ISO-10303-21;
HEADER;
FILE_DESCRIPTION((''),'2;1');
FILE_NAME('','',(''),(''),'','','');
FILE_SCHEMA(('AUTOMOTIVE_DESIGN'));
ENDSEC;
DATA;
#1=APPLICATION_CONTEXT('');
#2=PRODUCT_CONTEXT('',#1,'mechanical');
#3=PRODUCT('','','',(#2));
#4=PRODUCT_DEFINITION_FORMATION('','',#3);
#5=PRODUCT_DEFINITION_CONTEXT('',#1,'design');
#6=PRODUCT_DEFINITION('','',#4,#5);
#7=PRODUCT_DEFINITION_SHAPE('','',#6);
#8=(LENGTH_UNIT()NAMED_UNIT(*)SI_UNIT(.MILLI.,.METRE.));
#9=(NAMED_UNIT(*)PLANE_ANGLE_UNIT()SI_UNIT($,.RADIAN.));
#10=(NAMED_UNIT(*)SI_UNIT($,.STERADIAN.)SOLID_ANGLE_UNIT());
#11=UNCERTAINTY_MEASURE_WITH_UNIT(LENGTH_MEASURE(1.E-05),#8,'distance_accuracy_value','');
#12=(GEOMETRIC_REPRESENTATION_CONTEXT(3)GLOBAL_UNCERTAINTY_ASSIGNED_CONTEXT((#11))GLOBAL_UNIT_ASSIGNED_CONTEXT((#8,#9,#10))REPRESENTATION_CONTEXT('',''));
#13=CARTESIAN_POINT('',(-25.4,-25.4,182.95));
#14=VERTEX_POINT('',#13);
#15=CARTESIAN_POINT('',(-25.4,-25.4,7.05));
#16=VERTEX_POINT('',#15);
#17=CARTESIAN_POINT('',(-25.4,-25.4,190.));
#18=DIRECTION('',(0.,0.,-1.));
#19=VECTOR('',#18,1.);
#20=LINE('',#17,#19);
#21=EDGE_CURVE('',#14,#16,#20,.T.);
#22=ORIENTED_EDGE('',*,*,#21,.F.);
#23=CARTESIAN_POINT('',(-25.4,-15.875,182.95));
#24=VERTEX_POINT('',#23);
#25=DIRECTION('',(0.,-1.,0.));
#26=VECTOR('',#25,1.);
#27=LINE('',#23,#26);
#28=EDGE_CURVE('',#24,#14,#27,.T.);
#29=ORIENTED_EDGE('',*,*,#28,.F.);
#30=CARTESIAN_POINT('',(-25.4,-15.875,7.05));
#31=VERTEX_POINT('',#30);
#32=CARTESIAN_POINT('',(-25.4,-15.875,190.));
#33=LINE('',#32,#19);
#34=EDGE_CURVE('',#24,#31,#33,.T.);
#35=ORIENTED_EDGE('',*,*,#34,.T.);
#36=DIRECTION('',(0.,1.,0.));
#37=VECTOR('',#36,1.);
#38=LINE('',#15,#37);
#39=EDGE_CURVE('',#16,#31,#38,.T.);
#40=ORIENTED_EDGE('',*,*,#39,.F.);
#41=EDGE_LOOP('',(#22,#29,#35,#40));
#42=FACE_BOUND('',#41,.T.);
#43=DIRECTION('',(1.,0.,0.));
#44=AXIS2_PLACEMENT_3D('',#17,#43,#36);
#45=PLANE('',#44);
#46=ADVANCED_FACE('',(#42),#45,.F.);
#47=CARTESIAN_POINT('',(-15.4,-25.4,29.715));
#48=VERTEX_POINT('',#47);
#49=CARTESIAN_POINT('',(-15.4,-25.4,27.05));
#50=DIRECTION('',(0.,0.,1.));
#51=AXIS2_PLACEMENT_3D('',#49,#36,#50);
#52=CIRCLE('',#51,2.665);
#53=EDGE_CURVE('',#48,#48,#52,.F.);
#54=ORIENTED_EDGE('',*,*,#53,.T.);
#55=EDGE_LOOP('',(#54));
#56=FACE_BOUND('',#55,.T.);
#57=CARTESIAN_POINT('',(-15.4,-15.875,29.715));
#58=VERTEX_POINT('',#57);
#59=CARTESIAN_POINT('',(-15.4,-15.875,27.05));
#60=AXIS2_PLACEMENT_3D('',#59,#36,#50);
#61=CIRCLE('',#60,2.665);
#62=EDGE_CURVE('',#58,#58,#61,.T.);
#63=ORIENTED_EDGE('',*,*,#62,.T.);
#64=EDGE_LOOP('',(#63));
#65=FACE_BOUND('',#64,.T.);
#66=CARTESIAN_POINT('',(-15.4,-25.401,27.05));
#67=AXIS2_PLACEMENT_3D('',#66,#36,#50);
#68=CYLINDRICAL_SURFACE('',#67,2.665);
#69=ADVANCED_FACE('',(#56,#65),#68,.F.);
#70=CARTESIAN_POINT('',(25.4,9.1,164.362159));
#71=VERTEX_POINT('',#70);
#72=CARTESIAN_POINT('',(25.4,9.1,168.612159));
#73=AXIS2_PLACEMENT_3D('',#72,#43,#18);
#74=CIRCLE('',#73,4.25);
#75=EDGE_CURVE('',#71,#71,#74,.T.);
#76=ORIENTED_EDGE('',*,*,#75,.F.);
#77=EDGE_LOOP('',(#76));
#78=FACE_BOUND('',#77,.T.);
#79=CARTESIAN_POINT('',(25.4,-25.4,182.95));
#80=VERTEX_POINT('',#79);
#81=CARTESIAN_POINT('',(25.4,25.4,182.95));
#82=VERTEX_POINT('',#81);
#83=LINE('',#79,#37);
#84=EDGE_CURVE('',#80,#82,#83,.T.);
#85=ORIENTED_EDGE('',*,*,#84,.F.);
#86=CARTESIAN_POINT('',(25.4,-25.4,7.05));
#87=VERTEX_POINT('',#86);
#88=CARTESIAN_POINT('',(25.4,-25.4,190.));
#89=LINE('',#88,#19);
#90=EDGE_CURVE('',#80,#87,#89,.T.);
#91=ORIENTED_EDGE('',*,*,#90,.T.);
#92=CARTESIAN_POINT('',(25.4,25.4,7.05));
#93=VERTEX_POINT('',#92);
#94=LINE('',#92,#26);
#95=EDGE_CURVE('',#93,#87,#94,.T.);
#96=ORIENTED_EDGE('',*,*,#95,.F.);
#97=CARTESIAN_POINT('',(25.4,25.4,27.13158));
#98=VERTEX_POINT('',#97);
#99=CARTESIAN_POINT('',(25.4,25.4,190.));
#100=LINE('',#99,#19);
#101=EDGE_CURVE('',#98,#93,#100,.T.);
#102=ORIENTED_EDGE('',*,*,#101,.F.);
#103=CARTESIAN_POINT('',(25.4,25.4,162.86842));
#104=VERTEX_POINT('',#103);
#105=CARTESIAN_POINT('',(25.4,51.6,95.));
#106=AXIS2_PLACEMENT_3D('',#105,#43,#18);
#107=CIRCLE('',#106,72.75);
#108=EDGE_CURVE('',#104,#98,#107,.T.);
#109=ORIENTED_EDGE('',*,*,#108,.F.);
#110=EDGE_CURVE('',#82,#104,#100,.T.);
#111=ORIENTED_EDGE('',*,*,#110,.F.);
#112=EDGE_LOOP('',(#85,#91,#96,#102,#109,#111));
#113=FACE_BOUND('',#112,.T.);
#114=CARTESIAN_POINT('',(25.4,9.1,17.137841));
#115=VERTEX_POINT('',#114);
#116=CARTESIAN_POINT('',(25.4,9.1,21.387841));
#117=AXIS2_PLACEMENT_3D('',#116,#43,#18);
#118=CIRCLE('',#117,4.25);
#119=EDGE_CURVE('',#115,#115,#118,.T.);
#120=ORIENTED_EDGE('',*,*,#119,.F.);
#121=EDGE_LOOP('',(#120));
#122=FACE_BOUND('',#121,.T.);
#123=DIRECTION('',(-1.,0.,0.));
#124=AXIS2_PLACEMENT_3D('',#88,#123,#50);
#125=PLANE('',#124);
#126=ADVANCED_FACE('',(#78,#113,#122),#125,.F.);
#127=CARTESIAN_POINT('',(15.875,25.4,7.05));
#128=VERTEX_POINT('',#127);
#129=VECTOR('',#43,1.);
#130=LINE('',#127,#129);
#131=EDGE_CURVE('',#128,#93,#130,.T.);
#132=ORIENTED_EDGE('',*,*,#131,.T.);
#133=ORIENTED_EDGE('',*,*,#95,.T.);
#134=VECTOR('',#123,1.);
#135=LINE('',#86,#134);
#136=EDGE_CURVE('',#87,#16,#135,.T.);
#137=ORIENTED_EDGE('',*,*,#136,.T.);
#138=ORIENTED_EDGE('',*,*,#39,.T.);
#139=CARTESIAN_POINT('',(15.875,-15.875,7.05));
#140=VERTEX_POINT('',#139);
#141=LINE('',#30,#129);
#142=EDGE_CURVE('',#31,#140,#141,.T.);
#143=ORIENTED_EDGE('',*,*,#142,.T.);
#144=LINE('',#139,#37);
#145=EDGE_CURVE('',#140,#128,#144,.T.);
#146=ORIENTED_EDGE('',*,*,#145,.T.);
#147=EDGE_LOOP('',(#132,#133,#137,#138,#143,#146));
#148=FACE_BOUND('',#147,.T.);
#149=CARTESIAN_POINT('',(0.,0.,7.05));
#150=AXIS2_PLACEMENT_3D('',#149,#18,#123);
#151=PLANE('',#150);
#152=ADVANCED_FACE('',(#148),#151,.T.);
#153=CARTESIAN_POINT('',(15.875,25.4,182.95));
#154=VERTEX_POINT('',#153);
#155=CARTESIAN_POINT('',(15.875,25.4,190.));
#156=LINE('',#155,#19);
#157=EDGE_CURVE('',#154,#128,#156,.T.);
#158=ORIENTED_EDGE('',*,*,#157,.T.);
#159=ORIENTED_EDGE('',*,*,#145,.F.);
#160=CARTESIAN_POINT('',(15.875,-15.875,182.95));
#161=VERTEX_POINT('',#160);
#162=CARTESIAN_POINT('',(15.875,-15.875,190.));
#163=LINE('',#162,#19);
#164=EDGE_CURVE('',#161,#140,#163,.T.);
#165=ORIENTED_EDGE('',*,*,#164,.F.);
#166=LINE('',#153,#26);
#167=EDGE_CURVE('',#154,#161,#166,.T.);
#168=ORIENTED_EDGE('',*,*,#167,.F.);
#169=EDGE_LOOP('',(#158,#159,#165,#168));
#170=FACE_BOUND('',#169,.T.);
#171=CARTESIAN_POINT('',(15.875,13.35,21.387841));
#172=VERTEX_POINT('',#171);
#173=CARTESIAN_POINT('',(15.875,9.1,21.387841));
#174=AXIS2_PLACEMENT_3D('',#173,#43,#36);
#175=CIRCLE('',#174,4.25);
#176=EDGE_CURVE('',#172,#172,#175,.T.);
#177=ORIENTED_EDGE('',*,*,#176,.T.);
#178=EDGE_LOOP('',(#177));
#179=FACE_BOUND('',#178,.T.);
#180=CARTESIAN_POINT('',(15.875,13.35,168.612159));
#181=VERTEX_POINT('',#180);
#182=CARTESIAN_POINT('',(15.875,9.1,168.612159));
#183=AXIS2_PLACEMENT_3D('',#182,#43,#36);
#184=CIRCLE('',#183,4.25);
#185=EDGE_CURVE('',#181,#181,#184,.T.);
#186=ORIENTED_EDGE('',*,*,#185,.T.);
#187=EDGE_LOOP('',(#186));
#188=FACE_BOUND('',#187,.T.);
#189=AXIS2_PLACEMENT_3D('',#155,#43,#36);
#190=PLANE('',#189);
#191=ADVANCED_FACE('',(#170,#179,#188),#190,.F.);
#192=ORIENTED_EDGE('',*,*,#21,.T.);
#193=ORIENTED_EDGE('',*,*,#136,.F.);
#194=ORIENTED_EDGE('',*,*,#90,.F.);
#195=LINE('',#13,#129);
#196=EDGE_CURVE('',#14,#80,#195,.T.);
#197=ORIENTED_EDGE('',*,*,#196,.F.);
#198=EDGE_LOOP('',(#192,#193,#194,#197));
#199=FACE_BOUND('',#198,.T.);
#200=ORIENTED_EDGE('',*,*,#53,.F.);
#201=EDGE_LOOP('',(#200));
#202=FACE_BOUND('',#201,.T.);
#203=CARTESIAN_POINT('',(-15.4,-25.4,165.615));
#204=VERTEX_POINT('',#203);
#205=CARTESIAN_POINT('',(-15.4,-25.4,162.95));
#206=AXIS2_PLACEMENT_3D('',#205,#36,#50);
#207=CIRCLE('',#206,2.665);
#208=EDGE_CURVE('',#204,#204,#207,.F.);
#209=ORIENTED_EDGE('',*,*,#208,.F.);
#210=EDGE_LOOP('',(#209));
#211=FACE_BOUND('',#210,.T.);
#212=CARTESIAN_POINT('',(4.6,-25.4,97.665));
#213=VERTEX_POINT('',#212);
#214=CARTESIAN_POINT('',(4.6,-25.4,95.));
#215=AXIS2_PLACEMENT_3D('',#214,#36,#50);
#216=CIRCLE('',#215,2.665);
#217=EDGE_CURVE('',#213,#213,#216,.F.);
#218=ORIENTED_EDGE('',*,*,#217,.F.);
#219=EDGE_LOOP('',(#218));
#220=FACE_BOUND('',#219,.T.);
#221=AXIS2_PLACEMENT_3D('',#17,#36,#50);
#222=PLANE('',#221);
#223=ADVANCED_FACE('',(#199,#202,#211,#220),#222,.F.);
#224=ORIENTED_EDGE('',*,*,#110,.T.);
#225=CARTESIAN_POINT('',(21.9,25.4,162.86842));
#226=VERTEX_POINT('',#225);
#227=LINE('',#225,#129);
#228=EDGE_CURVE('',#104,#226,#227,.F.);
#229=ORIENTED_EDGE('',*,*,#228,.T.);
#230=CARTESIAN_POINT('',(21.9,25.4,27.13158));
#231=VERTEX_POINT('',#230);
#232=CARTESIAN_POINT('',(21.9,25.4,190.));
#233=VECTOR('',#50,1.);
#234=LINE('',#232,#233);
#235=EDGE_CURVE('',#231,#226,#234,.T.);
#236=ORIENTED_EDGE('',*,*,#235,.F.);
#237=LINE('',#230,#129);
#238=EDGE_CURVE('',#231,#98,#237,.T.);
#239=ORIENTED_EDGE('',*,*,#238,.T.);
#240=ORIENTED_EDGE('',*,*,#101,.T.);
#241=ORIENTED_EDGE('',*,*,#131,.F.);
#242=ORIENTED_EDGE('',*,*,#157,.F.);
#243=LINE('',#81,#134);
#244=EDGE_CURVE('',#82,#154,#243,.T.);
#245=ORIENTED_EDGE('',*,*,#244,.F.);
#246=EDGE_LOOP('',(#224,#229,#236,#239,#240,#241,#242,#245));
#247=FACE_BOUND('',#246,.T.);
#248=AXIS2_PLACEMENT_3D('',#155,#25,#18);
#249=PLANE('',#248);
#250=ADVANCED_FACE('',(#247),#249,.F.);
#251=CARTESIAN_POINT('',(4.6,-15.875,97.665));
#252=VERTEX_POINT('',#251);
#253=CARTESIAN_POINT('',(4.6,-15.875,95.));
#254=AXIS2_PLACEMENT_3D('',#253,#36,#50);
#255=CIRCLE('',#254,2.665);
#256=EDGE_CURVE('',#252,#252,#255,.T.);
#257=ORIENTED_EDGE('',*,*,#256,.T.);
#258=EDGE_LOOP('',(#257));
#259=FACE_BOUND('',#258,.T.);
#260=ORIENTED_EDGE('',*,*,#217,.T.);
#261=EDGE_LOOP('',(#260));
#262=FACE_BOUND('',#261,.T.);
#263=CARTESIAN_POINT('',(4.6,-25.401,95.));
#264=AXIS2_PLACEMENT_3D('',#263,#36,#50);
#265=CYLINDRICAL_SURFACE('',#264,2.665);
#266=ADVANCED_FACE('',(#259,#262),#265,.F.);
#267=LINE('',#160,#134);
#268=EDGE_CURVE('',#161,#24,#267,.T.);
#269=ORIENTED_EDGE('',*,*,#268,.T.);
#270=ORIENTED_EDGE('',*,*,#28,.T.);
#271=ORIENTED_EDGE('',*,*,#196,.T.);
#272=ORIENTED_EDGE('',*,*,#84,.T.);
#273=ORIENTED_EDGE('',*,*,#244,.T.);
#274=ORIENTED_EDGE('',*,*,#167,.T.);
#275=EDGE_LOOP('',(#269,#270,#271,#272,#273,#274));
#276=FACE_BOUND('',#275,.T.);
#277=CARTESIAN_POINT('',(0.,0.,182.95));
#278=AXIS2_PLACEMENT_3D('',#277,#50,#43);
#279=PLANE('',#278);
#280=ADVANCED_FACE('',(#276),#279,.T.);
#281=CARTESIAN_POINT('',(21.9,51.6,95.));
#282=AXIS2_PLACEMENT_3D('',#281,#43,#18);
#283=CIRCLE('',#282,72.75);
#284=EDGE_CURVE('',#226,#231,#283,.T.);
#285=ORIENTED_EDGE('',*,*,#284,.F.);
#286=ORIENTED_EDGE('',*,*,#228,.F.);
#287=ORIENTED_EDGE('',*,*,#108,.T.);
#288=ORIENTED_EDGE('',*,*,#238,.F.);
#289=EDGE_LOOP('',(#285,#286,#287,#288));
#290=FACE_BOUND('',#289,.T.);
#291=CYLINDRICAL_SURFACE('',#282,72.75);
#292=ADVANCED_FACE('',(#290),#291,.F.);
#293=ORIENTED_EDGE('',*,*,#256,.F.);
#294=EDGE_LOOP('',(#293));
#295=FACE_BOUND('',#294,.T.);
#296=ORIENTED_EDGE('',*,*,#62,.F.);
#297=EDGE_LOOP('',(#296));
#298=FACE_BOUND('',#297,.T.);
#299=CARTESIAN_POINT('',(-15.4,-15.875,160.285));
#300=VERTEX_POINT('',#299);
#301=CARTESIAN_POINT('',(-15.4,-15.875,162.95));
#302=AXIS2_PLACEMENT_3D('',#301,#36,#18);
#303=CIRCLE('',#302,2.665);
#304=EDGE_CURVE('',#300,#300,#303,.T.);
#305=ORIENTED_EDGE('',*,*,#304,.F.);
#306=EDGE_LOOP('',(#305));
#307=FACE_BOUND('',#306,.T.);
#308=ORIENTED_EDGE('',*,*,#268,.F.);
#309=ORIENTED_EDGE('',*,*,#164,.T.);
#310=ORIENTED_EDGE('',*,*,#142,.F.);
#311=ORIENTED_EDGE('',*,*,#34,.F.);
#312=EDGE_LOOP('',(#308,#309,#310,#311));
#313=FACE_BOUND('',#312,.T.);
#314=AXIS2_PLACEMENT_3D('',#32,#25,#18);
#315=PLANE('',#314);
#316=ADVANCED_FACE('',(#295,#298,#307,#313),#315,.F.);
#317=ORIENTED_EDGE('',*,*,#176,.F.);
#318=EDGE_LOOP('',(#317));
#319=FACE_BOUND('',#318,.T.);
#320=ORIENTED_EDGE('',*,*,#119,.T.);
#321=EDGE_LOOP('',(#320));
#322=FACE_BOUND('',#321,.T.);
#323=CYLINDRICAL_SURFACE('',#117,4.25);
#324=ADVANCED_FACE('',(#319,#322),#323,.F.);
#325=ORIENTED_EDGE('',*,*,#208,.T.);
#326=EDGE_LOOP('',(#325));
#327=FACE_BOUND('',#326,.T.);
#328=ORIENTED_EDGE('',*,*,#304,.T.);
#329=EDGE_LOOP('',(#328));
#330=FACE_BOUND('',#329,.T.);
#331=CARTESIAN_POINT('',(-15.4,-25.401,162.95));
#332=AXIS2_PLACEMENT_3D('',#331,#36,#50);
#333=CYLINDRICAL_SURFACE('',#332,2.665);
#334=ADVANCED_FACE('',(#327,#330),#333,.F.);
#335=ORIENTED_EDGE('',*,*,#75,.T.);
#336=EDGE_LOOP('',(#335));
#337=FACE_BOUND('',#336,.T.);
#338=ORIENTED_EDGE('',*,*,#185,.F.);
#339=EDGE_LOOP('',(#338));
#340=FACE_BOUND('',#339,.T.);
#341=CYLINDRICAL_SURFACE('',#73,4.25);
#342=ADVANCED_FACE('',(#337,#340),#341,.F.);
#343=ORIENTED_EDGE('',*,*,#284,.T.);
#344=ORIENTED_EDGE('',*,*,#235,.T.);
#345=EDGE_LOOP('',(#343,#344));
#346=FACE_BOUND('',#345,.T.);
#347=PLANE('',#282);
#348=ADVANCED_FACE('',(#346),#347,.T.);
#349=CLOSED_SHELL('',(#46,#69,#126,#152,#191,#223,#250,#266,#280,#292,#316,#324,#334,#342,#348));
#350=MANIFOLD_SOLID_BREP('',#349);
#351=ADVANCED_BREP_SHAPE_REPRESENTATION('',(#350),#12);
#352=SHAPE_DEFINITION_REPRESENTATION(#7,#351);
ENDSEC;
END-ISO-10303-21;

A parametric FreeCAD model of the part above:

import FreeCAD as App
import Part
import Sketcher
from FreeCAD import Vector

doc = App.newDocument("Part")
body = doc.addObject("PartDesign::Body", "Body")

sketch1 = doc.addObject("Sketcher::SketchObject", "Sketch")
body.addObject(sketch1)
sketch1.AttachmentSupport = (doc.XY_Plane, [""])
sketch1.MapMode = "FlatFace"
sketch1.addGeometry(Part.LineSegment(Vector(-25, -25, 0), Vector(25, -25, 0)), False)
sketch1.addGeometry(Part.LineSegment(Vector(25, -25, 0), Vector(25, 25, 0)), False)
sketch1.addGeometry(Part.LineSegment(Vector(25, 25, 0), Vector(16, 25, 0)), False)
sketch1.addGeometry(Part.LineSegment(Vector(16, 25, 0), Vector(16, -16, 0)), False)
sketch1.addGeometry(Part.LineSegment(Vector(16, -16, 0), Vector(-25, -16, 0)), False)
sketch1.addGeometry(Part.LineSegment(Vector(-25, -16, 0), Vector(-25, -25, 0)), False)
sketch1.addConstraint(Sketcher.Constraint("Coincident", 0, 2, 1, 1))
sketch1.addConstraint(Sketcher.Constraint("Coincident", 1, 2, 2, 1))
sketch1.addConstraint(Sketcher.Constraint("Coincident", 2, 2, 3, 1))
sketch1.addConstraint(Sketcher.Constraint("Coincident", 3, 2, 4, 1))
sketch1.addConstraint(Sketcher.Constraint("Coincident", 4, 2, 5, 1))
sketch1.addConstraint(Sketcher.Constraint("Coincident", 5, 2, 0, 1))
sketch1.addConstraint(Sketcher.Constraint("Horizontal", 0))
sketch1.addConstraint(Sketcher.Constraint("Vertical", 1))
sketch1.addConstraint(Sketcher.Constraint("Horizontal", 2))
sketch1.addConstraint(Sketcher.Constraint("Vertical", 3))
sketch1.addConstraint(Sketcher.Constraint("Horizontal", 4))
sketch1.addConstraint(Sketcher.Constraint("Vertical", 5))
sketch1.addConstraint(Sketcher.Constraint("Symmetric", 1, 2, 5, 2, -1, 1))
sketch1.addConstraint(Sketcher.Constraint("Equal", 0, 1))
sketch1.addConstraint(Sketcher.Constraint("Equal", 4, 3))
sketch1.addConstraint(Sketcher.Constraint("DistanceX", 0, 1, 0, 2, 50.8))
sketch1.addConstraint(Sketcher.Constraint("DistanceX", 2, 2, 2, 1, 9.525))
pad1 = doc.addObject("PartDesign::Pad", "Pad")
body.addObject(pad1)
pad1.Profile = sketch1
pad1.Length = 190

sketch2 = doc.addObject("Sketcher::SketchObject", "Sketch001")
body.addObject(sketch2)
sketch2.AttachmentSupport = (doc.YZ_Plane, [""])
sketch2.MapMode = "FlatFace"
sketch2.AttachmentOffset = App.Placement(Vector(0, 0, 25.4), App.Rotation())
sketch2.addGeometry(Part.Circle(Vector(52, 95, 0), Vector(0, 0, 1), 73), False)
sketch2.addConstraint(Sketcher.Constraint("Diameter", 0, 145.5))
sketch2.addConstraint(Sketcher.Constraint("DistanceY", -1, 1, 0, 3, 95.0))
sketch2.addConstraint(Sketcher.Constraint("DistanceX", -1, 1, 0, 3, 51.6))
pocket1 = doc.addObject("PartDesign::Pocket", "Pocket")
body.addObject(pocket1)
pocket1.Profile = sketch2
pocket1.Length = 3.5

sketch3 = doc.addObject("Sketcher::SketchObject", "Sketch002")
body.addObject(sketch3)
sketch3.AttachmentSupport = (doc.XY_Plane, [""])
sketch3.MapMode = "FlatFace"
sketch3.AttachmentOffset = App.Placement(Vector(0, 0, 190), App.Rotation())
sketch3.addGeometry(Part.LineSegment(Vector(25, -25, 0), Vector(25, 25, 0)), False)
sketch3.addGeometry(Part.LineSegment(Vector(25, 25, 0), Vector(16, 25, 0)), False)
sketch3.addGeometry(Part.LineSegment(Vector(16, 25, 0), Vector(16, -16, 0)), False)
sketch3.addGeometry(Part.LineSegment(Vector(16, -16, 0), Vector(-25, -16, 0)), False)
sketch3.addGeometry(Part.LineSegment(Vector(-25, -16, 0), Vector(-25, -25, 0)), False)
sketch3.addGeometry(Part.LineSegment(Vector(-25, -25, 0), Vector(25, -25, 0)), False)
sketch3.addConstraint(Sketcher.Constraint("Coincident", 0, 2, 1, 1))
sketch3.addConstraint(Sketcher.Constraint("Coincident", 1, 2, 2, 1))
sketch3.addConstraint(Sketcher.Constraint("Coincident", 2, 2, 3, 1))
sketch3.addConstraint(Sketcher.Constraint("Coincident", 3, 2, 4, 1))
sketch3.addConstraint(Sketcher.Constraint("Coincident", 4, 2, 5, 1))
sketch3.addConstraint(Sketcher.Constraint("Coincident", 5, 2, 0, 1))
sketch3.addConstraint(Sketcher.Constraint("Vertical", 0))
sketch3.addConstraint(Sketcher.Constraint("Horizontal", 1))
sketch3.addConstraint(Sketcher.Constraint("Vertical", 2))
sketch3.addConstraint(Sketcher.Constraint("Horizontal", 3))
sketch3.addConstraint(Sketcher.Constraint("Vertical", 4))
sketch3.addConstraint(Sketcher.Constraint("Horizontal", 5))
sketch3.addConstraint(Sketcher.Constraint("Symmetric", 0, 2, 4, 2, -1, 1))
sketch3.addConstraint(Sketcher.Constraint("Equal", 5, 0))
sketch3.addConstraint(Sketcher.Constraint("Equal", 3, 2))
sketch3.addConstraint(Sketcher.Constraint("DistanceX", 5, 1, 5, 2, 50.8))
sketch3.addConstraint(Sketcher.Constraint("DistanceX", 1, 2, 1, 1, 9.525))
pocket2 = doc.addObject("PartDesign::Pocket", "Pocket001")
body.addObject(pocket2)
pocket2.Profile = sketch3
pocket2.Length = 7.05

sketch4 = doc.addObject("Sketcher::SketchObject", "Sketch003")
body.addObject(sketch4)
sketch4.AttachmentSupport = (doc.XY_Plane, [""])
sketch4.MapMode = "FlatFace"
sketch4.addGeometry(Part.LineSegment(Vector(25, 25, 0), Vector(25, -25, 0)), False)
sketch4.addGeometry(Part.LineSegment(Vector(25, -25, 0), Vector(-25, -25, 0)), False)
sketch4.addGeometry(Part.LineSegment(Vector(-25, -25, 0), Vector(-25, -16, 0)), False)
sketch4.addGeometry(Part.LineSegment(Vector(-25, -16, 0), Vector(16, -16, 0)), False)
sketch4.addGeometry(Part.LineSegment(Vector(16, -16, 0), Vector(16, 25, 0)), False)
sketch4.addGeometry(Part.LineSegment(Vector(16, 25, 0), Vector(25, 25, 0)), False)
sketch4.addConstraint(Sketcher.Constraint("Coincident", 0, 2, 1, 1))
sketch4.addConstraint(Sketcher.Constraint("Coincident", 1, 2, 2, 1))
sketch4.addConstraint(Sketcher.Constraint("Coincident", 2, 2, 3, 1))
sketch4.addConstraint(Sketcher.Constraint("Coincident", 3, 2, 4, 1))
sketch4.addConstraint(Sketcher.Constraint("Coincident", 4, 2, 5, 1))
sketch4.addConstraint(Sketcher.Constraint("Coincident", 5, 2, 0, 1))
sketch4.addConstraint(Sketcher.Constraint("Vertical", 0))
sketch4.addConstraint(Sketcher.Constraint("Horizontal", 1))
sketch4.addConstraint(Sketcher.Constraint("Vertical", 2))
sketch4.addConstraint(Sketcher.Constraint("Horizontal", 3))
sketch4.addConstraint(Sketcher.Constraint("Vertical", 4))
sketch4.addConstraint(Sketcher.Constraint("Horizontal", 5))
sketch4.addConstraint(Sketcher.Constraint("Symmetric", 1, 2, 5, 2, -1, 1))
sketch4.addConstraint(Sketcher.Constraint("Equal", 1, 0))
sketch4.addConstraint(Sketcher.Constraint("Equal", 5, 2))
sketch4.addConstraint(Sketcher.Constraint("DistanceX", 1, 2, 1, 1, 50.8))
sketch4.addConstraint(Sketcher.Constraint("DistanceX", 3, 1, 3, 2, 41.275))
pocket3 = doc.addObject("PartDesign::Pocket", "Pocket002")
body.addObject(pocket3)
pocket3.Profile = sketch4
pocket3.Length = 7.05
pocket3.Reversed = True

sketch5 = doc.addObject("Sketcher::SketchObject", "Sketch004")
body.addObject(sketch5)
sketch5.AttachmentSupport = (doc.YZ_Plane, [""])
sketch5.MapMode = "FlatFace"
sketch5.AttachmentOffset = App.Placement(Vector(0, 0, 25.4), App.Rotation())
sketch5.addGeometry(Part.Circle(Vector(9.1, 168.6, 0), Vector(0, 0, 1), 4.2), False)
sketch5.addGeometry(Part.Circle(Vector(9.1, 21.4, 0), Vector(0, 0, 1), 4.2), False)
sketch5.addConstraint(Sketcher.Constraint("Equal", 0, 1))
sketch5.addConstraint(Sketcher.Constraint("Vertical", 0, 3, 1, 3))
sketch5.addConstraint(Sketcher.Constraint("Diameter", 0, 8.5))
sketch5.addConstraint(Sketcher.Constraint("DistanceX", -1, 1, 0, 3, 9.1))
sketch5.addConstraint(Sketcher.Constraint("DistanceY", -1, 1, 0, 3, 168.612159))
sketch5.addConstraint(Sketcher.Constraint("DistanceY", -1, 1, 1, 3, 21.387841))
doc.recompute()
hole = doc.addObject("PartDesign::Hole", "Hole")
body.addObject(hole)
hole.Profile = sketch5
hole.ThreadType = "None"
hole.Diameter = 8.5
hole.DepthType = "ThroughAll"

sketch6 = doc.addObject("Sketcher::SketchObject", "Sketch005")
body.addObject(sketch6)
sketch6.AttachmentSupport = (doc.XZ_Plane, [""])
sketch6.MapMode = "FlatFace"
sketch6.AttachmentOffset = App.Placement(Vector(0, 0, 15.875), App.Rotation())
sketch6.addGeometry(Part.Circle(Vector(-15.4, 27.1, 0), Vector(0, 0, 1), 2.7), False)
sketch6.addConstraint(Sketcher.Constraint("Diameter", 0, 5.33))
sketch6.addConstraint(Sketcher.Constraint("DistanceX", 0, 3, -1, 1, 15.4))
sketch6.addConstraint(Sketcher.Constraint("DistanceY", -1, 1, 0, 3, 27.05))
pocket4 = doc.addObject("PartDesign::Pocket", "Pocket003")
body.addObject(pocket4)
pocket4.Profile = sketch6
pocket4.Type = "UpToFirst"
pocket4.Reversed = True

sketch7 = doc.addObject("Sketcher::SketchObject", "Sketch006")
body.addObject(sketch7)
sketch7.AttachmentSupport = (doc.XZ_Plane, [""])
sketch7.MapMode = "FlatFace"
sketch7.AttachmentOffset = App.Placement(Vector(0, 0, 15.875), App.Rotation())
sketch7.addGeometry(Part.Circle(Vector(4.6, 95, 0), Vector(0, 0, 1), 2.7), False)
sketch7.addConstraint(Sketcher.Constraint("Diameter", 0, 5.33))
sketch7.addConstraint(Sketcher.Constraint("DistanceY", -1, 1, 0, 3, 95.0))
sketch7.addConstraint(Sketcher.Constraint("DistanceX", -1, 1, 0, 3, 4.6))
pocket5 = doc.addObject("PartDesign::Pocket", "Pocket004")
body.addObject(pocket5)
pocket5.Profile = sketch7
pocket5.Type = "UpToFirst"
pocket5.Reversed = True

sketch8 = doc.addObject("Sketcher::SketchObject", "Sketch007")
body.addObject(sketch8)
sketch8.AttachmentSupport = (doc.XZ_Plane, [""])
sketch8.MapMode = "FlatFace"
sketch8.AttachmentOffset = App.Placement(Vector(0, 0, 15.875), App.Rotation())
sketch8.addGeometry(Part.Circle(Vector(-15.4, 162.9, 0), Vector(0, 0, 1), 2.7), False)
sketch8.addConstraint(Sketcher.Constraint("Diameter", 0, 5.33))
sketch8.addConstraint(Sketcher.Constraint("DistanceX", 0, 3, -1, 1, 15.4))
sketch8.addConstraint(Sketcher.Constraint("DistanceY", -1, 1, 0, 3, 162.95))
pocket6 = doc.addObject("PartDesign::Pocket", "Pocket005")
body.addObject(pocket6)
pocket6.Profile = sketch8
pocket6.Type = "UpToFirst"
pocket6.Reversed = True

doc.recompute()
